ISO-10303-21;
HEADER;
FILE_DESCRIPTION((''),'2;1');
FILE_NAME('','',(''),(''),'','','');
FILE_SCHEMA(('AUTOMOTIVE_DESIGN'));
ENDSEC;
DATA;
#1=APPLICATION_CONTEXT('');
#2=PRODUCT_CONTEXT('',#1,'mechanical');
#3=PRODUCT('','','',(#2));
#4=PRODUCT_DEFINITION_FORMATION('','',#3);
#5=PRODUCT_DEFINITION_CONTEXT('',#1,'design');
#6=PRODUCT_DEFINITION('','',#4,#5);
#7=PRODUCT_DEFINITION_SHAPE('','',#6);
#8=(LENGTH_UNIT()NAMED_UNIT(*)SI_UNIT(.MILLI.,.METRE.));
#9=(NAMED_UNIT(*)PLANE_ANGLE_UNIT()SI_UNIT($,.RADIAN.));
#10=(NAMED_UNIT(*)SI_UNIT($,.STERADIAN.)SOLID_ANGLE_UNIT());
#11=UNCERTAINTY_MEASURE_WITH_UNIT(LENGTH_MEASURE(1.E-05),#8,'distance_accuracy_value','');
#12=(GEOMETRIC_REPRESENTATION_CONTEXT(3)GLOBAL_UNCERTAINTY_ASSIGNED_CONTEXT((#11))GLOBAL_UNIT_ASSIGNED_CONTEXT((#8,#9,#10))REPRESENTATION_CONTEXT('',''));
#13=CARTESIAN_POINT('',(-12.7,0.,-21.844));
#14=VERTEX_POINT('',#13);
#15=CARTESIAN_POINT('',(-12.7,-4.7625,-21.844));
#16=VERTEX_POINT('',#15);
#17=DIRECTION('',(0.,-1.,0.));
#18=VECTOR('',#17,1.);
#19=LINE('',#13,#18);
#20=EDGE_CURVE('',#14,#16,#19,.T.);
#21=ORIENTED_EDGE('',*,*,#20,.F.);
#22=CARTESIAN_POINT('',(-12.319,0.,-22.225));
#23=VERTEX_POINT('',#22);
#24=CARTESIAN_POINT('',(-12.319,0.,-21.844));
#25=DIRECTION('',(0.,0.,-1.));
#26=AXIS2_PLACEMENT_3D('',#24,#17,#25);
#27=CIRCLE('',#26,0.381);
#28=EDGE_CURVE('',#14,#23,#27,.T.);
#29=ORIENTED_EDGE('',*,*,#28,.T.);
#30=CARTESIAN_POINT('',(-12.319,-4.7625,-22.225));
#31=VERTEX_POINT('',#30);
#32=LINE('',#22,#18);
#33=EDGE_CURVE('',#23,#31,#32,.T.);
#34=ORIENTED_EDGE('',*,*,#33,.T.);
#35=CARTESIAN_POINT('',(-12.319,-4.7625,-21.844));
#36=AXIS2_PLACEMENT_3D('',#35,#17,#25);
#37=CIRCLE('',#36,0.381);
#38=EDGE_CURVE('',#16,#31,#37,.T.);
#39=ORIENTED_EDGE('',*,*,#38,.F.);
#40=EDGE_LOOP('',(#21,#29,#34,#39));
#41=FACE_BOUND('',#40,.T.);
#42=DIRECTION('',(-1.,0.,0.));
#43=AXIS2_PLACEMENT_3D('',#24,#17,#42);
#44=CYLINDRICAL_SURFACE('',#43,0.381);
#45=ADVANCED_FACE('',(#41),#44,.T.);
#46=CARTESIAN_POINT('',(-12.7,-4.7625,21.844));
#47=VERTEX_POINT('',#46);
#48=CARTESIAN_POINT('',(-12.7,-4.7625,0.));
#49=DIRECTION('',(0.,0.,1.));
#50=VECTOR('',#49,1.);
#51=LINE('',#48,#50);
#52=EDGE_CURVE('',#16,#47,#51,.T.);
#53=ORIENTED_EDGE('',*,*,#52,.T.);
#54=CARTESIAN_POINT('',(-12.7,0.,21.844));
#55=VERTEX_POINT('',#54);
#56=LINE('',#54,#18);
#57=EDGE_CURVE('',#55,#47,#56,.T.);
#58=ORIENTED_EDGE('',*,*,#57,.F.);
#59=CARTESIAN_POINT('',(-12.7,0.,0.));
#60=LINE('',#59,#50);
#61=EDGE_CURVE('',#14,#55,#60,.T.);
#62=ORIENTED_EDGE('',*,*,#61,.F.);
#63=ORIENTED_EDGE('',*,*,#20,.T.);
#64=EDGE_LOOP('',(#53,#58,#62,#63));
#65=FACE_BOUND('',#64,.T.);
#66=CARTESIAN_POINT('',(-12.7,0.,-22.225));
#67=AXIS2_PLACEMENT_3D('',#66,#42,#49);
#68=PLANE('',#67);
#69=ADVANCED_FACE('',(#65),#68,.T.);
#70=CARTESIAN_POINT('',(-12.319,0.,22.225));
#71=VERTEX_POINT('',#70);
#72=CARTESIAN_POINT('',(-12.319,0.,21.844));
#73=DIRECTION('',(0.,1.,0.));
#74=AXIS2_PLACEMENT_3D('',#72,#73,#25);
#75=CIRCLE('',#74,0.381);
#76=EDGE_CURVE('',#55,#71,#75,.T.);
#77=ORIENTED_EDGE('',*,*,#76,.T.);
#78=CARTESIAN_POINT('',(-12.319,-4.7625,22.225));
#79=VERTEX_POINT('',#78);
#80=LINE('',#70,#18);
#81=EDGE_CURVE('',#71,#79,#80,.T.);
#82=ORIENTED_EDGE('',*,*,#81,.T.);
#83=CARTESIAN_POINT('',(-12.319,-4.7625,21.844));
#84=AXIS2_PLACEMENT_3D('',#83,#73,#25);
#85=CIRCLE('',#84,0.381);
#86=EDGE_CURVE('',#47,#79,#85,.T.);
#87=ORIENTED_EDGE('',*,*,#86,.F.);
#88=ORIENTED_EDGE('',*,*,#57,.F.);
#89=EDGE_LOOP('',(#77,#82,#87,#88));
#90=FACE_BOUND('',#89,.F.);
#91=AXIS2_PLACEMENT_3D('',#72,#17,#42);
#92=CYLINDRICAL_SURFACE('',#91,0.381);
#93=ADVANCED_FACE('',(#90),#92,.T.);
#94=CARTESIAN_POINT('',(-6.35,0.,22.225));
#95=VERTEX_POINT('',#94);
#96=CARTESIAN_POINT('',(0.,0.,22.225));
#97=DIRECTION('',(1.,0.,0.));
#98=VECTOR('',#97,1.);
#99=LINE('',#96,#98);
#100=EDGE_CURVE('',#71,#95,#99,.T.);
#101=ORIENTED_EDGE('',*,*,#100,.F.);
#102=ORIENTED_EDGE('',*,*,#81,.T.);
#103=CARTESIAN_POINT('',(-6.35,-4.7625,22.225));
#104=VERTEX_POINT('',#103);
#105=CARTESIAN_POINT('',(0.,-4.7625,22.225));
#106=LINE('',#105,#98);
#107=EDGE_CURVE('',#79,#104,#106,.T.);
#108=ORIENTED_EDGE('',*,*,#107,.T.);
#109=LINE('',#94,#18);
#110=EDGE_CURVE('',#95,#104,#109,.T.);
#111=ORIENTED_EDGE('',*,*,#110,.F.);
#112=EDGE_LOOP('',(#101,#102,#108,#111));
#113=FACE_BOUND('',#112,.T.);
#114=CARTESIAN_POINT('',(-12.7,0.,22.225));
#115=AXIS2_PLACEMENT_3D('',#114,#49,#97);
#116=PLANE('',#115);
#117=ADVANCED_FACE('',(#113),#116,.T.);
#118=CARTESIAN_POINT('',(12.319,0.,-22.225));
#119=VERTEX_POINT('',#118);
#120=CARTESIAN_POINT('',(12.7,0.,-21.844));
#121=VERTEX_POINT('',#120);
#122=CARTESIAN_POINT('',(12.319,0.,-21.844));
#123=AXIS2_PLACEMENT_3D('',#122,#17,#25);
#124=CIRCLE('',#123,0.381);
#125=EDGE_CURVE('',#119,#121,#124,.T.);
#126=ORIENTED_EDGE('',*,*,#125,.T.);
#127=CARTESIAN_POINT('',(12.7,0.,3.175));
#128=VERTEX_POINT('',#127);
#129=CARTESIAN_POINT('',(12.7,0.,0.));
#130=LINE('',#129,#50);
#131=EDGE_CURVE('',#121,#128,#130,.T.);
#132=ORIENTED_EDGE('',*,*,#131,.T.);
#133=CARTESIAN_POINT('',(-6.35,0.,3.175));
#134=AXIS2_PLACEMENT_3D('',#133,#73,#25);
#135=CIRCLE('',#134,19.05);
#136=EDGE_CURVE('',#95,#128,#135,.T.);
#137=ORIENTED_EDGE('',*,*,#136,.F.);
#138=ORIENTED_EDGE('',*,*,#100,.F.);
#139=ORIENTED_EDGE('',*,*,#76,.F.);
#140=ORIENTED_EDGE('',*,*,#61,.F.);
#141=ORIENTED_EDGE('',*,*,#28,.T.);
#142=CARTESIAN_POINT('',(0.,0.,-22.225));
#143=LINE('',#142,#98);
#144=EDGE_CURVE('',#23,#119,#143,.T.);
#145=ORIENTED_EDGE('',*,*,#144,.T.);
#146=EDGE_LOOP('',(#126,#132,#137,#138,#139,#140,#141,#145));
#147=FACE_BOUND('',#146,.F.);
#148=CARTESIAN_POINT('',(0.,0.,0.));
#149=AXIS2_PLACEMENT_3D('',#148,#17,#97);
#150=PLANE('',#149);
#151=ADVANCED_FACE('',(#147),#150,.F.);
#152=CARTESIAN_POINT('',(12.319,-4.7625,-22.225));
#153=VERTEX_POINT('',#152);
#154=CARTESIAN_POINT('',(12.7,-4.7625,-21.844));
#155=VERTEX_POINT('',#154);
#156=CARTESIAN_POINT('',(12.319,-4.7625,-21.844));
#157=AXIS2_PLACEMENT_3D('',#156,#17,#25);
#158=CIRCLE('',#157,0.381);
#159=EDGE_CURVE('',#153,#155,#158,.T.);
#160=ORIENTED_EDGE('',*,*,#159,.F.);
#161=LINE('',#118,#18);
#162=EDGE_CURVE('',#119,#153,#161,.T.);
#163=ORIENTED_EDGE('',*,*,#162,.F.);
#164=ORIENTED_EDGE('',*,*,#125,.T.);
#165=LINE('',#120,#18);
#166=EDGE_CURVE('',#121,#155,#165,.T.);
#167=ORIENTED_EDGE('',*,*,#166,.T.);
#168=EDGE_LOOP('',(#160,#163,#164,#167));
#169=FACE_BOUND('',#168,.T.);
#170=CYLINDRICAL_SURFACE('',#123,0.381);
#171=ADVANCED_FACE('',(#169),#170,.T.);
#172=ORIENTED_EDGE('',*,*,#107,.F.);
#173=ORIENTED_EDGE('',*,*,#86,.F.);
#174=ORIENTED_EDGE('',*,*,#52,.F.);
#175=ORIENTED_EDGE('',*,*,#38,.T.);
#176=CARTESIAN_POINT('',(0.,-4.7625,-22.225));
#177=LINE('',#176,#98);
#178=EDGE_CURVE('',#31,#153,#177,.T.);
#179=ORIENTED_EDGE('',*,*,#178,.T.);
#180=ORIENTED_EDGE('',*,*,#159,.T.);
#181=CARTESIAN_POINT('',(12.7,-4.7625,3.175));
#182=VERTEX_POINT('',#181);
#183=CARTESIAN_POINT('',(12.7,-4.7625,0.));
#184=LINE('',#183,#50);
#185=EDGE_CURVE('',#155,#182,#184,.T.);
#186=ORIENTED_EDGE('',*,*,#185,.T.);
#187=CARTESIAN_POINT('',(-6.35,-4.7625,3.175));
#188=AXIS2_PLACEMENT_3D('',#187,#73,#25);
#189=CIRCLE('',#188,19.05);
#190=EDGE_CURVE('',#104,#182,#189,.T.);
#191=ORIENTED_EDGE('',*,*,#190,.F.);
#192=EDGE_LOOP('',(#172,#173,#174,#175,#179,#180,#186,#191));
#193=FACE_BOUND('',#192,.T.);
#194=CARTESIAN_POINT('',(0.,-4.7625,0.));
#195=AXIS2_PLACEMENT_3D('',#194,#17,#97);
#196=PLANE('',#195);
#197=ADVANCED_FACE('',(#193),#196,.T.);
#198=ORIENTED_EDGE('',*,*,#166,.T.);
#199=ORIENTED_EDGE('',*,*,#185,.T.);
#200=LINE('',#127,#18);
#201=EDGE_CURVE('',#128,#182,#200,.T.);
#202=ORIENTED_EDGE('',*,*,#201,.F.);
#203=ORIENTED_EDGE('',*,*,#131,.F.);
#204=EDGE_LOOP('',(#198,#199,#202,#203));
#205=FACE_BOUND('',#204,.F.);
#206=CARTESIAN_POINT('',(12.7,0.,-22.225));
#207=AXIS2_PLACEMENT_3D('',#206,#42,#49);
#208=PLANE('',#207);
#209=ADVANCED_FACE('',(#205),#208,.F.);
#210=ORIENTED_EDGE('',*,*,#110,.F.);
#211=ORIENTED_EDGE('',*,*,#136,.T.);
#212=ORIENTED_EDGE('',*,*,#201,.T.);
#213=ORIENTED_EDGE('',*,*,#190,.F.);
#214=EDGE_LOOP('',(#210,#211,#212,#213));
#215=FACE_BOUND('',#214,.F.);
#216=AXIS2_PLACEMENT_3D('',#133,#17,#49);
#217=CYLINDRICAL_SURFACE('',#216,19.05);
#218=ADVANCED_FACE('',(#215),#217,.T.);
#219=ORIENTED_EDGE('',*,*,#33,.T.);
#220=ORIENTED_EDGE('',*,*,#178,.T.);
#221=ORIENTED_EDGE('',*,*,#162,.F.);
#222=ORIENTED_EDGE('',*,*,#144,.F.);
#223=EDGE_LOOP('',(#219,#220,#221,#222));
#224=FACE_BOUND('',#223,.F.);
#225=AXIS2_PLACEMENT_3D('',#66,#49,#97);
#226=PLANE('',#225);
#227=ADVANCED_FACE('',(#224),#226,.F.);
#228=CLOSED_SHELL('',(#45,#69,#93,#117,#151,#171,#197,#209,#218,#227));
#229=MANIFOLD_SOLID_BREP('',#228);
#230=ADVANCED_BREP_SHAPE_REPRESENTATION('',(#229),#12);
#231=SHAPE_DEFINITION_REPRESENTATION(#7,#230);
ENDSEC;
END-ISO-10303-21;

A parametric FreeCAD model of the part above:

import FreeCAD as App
import Part
import Sketcher
Q = App.Units.Quantity


def edges_at(feature, points):
    """Names of the edges that pass closest to the given points."""
    edges = feature.Shape.Edges
    near = lambda p: min(range(len(edges)), key=lambda i: edges[i].distToShape(Part.Vertex(*p))[0])
    return sorted({f"Edge{near(p) + 1}" for p in points})


def add_polygon(sketch, points):
    """Adds a closed chain of lines whose ends are joined by coincident constraints."""
    first, n = sketch.GeometryCount, len(points)
    for a, b in zip(points, points[1:] + points[:1]):
        sketch.addGeometry(Part.LineSegment(App.Vector(*a, 0), App.Vector(*b, 0)), False)
    for i in range(n):
        sketch.addConstraint(Sketcher.Constraint("Coincident", first + i, 2, first + (i + 1) % n, 1))

doc = App.newDocument("Part")
params = doc.addObject("Spreadsheet::Sheet", "Params")
for row, (alias, value) in enumerate([
    ("sketch1_width", "1 in"),
    ("sketch1_height", "1.75 in"),
    ("pad1_length", "0.1875 in"),
    ("fillet_radius", "0.015 in"),
    ("fillet2_radius", "0.75 in"),
], start=1):
    params.set(f"A{row}", alias)
    params.set(f"B{row}", "=" + value)
    params.setAlias(f"B{row}", alias)

body = doc.addObject("PartDesign::Body", "Body")

sketch1 = body.newObject("Sketcher::SketchObject", "Sketch")
sketch1.AttachmentSupport = (doc.getObject("XZ_Plane"), [""])
sketch1.MapMode = "FlatFace"
add_polygon(sketch1, [(-12.7, 22.225), (-12.7, -22.225), (12.7, -22.225), (12.7, 22.225)])
sketch1.addConstraint([
    Sketcher.Constraint("Vertical", 0),
    Sketcher.Constraint("Horizontal", 1),
    Sketcher.Constraint("Vertical", 2),
    Sketcher.Constraint("Horizontal", 3),
    Sketcher.Constraint("Symmetric", 0, 2, 2, 2, -1, 1),
    Sketcher.Constraint("DistanceX", 1, 1, 1, 2, Q("1 in")),
    Sketcher.Constraint("DistanceY", 0, 2, 0, 1, Q("1.75 in")),
])
sketch1.setExpression("Constraints[9]", "Params.sketch1_width")
sketch1.setExpression("Constraints[10]", "Params.sketch1_height")
pad1 = body.newObject("PartDesign::Pad", "Pad")
pad1.Profile = sketch1
pad1.setExpression("Length", "Params.pad1_length")
doc.recompute()

fillet = body.newObject("PartDesign::Fillet", "Fillet")
fillet.Base = (pad1, edges_at(pad1, [(-12.7, -2.381, -22.225), (12.7, -2.381, -22.225), (-12.7, -2.381, 22.225)]))
fillet.setExpression("Radius", "Params.fillet_radius")
doc.recompute()

fillet2 = body.newObject("PartDesign::Fillet", "Fillet001")
fillet2.Base = (fillet, edges_at(fillet, [(12.7, -2.381, 22.225)]))
fillet2.setExpression("Radius", "Params.fillet2_radius")

doc.recompute()
